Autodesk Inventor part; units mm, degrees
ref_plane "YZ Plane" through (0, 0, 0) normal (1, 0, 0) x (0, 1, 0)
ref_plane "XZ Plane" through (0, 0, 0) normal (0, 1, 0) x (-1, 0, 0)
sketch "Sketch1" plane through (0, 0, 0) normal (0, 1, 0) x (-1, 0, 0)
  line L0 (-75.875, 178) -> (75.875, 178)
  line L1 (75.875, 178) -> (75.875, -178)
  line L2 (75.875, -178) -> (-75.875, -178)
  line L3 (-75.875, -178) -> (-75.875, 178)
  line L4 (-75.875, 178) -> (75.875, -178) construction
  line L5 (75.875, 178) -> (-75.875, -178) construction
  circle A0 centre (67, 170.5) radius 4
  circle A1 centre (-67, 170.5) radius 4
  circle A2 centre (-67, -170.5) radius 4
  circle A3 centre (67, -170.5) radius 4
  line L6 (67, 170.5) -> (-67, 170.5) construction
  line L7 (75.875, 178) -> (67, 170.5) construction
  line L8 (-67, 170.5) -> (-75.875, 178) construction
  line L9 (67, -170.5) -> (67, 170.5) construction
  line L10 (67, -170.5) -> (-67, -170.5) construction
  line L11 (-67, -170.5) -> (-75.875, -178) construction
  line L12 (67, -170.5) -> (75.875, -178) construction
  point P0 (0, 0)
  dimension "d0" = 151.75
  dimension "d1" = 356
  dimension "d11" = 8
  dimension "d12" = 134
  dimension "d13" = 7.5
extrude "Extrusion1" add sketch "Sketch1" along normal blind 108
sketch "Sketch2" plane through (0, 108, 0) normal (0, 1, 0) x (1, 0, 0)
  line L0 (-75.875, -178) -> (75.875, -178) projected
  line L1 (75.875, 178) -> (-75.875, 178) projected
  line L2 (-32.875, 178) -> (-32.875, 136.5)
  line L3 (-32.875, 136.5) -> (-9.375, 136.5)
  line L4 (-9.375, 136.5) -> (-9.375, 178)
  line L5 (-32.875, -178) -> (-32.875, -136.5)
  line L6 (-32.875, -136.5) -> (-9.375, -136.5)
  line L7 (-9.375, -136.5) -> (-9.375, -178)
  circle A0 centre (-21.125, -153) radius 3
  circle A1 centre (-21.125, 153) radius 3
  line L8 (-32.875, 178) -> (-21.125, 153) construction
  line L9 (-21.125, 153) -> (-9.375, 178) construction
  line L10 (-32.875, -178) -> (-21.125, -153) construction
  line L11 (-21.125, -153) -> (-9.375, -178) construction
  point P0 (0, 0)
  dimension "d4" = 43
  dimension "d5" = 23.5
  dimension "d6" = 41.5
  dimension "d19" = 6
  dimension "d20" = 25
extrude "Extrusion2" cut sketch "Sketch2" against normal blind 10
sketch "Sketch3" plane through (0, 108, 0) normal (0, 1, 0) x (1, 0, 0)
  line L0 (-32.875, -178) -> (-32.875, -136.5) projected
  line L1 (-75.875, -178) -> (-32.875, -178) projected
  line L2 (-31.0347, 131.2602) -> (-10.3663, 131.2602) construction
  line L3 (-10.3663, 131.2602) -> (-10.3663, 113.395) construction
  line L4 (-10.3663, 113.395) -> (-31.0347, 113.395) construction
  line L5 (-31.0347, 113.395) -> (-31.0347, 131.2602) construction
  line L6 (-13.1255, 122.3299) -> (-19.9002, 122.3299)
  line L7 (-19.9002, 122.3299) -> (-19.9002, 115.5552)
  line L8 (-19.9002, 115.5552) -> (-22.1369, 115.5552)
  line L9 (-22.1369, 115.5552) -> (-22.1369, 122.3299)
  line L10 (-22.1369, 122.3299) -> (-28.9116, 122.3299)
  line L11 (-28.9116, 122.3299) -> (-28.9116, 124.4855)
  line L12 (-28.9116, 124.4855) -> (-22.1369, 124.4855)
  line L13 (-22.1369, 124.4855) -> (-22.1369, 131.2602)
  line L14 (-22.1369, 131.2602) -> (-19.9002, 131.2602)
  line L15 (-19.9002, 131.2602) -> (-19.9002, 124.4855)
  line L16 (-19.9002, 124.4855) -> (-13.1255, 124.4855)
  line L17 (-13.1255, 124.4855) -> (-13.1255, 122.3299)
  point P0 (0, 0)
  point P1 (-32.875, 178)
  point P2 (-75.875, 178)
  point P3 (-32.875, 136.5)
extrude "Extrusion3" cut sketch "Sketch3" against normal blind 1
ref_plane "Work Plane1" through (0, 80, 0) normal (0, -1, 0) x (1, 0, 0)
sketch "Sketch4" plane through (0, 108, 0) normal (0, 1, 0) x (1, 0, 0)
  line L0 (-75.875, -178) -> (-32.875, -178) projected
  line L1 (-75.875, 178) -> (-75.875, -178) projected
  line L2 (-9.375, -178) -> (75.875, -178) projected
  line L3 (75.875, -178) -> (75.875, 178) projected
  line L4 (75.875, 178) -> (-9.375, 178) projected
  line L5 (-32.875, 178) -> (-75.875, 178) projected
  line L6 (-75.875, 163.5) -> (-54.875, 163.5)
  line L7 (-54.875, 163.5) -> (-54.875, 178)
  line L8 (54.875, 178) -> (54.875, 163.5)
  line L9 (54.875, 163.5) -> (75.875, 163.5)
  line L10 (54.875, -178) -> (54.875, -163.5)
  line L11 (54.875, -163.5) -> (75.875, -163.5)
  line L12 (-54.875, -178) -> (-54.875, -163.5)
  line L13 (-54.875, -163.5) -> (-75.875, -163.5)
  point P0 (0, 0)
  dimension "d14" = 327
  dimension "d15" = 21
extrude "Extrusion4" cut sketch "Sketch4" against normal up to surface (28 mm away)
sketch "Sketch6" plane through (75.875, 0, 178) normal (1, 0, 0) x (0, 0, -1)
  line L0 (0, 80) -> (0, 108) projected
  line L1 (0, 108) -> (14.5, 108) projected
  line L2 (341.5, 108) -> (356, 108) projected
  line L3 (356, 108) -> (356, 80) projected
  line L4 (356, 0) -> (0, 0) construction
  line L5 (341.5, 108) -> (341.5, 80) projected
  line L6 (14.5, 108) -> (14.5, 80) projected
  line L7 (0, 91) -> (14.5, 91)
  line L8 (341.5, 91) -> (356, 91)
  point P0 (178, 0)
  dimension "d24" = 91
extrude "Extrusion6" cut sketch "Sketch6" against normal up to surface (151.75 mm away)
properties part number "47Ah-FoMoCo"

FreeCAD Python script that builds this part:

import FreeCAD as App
import Part
import Sketcher

V = App.Vector
Q = App.Units.Quantity


def add_polygon(sketch, points):
    """Adds a closed chain of lines whose ends are joined by coincident constraints."""
    first, n = sketch.GeometryCount, len(points)
    for a, b in zip(points, points[1:] + points[:1]):
        sketch.addGeometry(Part.LineSegment(App.Vector(*a, 0), App.Vector(*b, 0)), False)
    for i in range(n):
        sketch.addConstraint(Sketcher.Constraint("Coincident", first + i, 2, first + (i + 1) % n, 1))

doc = App.newDocument("Part")
body = doc.addObject("PartDesign::Body", "Body")

# Sketch on XZ plane
sketch1 = doc.addObject("Sketcher::SketchObject", "Sketch")
body.addObject(sketch1)
sketch1.AttachmentSupport = (doc.XZ_Plane, [""])
sketch1.MapMode = "FlatFace"
add_polygon(sketch1, [(-75.9, 178), (75.9, 178), (75.9, -178), (-75.9, -178)])  # lines 0-3
sketch1.addGeometry(Part.Circle(V(67, -170.5, 0), V(0, 0, 1), 4), False)  # 4
sketch1.addGeometry(Part.Circle(V(-67, -170.5, 0), V(0, 0, 1), 4), False)  # 5
sketch1.addGeometry(Part.Circle(V(67, 170.5, 0), V(0, 0, 1), 4), False)  # 6
sketch1.addGeometry(Part.Circle(V(-67, 170.5, 0), V(0, 0, 1), 4), False)  # 7
sketch1.addConstraint([
    Sketcher.Constraint("Horizontal", 0),
    Sketcher.Constraint("Vertical", 1),
    Sketcher.Constraint("Horizontal", 2),
    Sketcher.Constraint("Vertical", 3),
    Sketcher.Constraint("Equal", 4, 5),
    Sketcher.Constraint("Equal", 5, 6),
    Sketcher.Constraint("Equal", 6, 7),
    Sketcher.Constraint("Symmetric", 5, 3, 6, 3, -1, 1),
    Sketcher.Constraint("Symmetric", 4, 3, 7, 3, -1, 1),
    Sketcher.Constraint("Symmetric", 0, 2, 2, 2, -1, 1),
    Sketcher.Constraint("Symmetric", 4, 3, 5, 3, -2),
    Sketcher.Constraint("Diameter", 4, Q("8 mm")),
    Sketcher.Constraint("DistanceY", 1, 2, 1, 1, Q("356 mm")),
    Sketcher.Constraint("DistanceX", 5, 3, 4, 3, Q("134 mm")),
    Sketcher.Constraint("DistanceX", 0, 1, 0, 2, Q("151.75 mm")),
    Sketcher.Constraint("DistanceY", 6, 3, 0, 2, Q("7.5 mm")),
])
pad1 = doc.addObject("PartDesign::Pad", "Pad")
body.addObject(pad1)
pad1.Profile = sketch1
pad1.Length = 108
pad1.Reversed = True

# Sketch on XZ plane
sketch2 = doc.addObject("Sketcher::SketchObject", "Sketch001")
body.addObject(sketch2)
sketch2.AttachmentSupport = (doc.XZ_Plane, [""])
sketch2.MapMode = "FlatFace"
sketch2.AttachmentOffset = App.Placement(V(0, 0, -108), App.Rotation())
add_polygon(sketch2, [(-32.9, 136.5), (-32.9, 178), (-9.4, 178), (-9.4, 136.5)])  # lines 0-3
sketch2.addGeometry(Part.Circle(V(-21.1, 153, 0), V(0, 0, 1), 3), False)  # 4
add_polygon(sketch2, [(-9.4, -136.5), (-9.4, -178), (-32.9, -178), (-32.9, -136.5)])  # lines 5-8
sketch2.addGeometry(Part.Circle(V(-21.1, -153, 0), V(0, 0, 1), 3), False)  # 9
sketch2.addConstraint([
    Sketcher.Constraint("Vertical", 0),
    Sketcher.Constraint("Horizontal", 1),
    Sketcher.Constraint("Vertical", 2),
    Sketcher.Constraint("Horizontal", 3),
    Sketcher.Constraint("Vertical", 5),
    Sketcher.Constraint("Horizontal", 6),
    Sketcher.Constraint("Vertical", 7),
    Sketcher.Constraint("Horizontal", 8),
    Sketcher.Constraint("Equal", 4, 9),
    Sketcher.Constraint("Symmetric", 4, 3, 9, 3, -1),
    Sketcher.Constraint("Symmetric", 1, 2, 5, 2, -1),
    Sketcher.Constraint("Symmetric", 3, 2, 7, 2, -1),
    Sketcher.Constraint("Diameter", 4, Q("6 mm")),
    Sketcher.Constraint("DistanceX", 1, 1, 1, 2, Q("23.5 mm")),
    Sketcher.Constraint("DistanceY", 0, 1, 0, 2, Q("41.5 mm")),
    Sketcher.Constraint("DistanceY", 4, 3, 0, 2, Q("25 mm")),
    Sketcher.Constraint("DistanceY", -1, 1, 4, 3, Q("153 mm")),
    Sketcher.Constraint("DistanceX", 0, 2, 4, 3, Q("11.75 mm")),
    Sketcher.Constraint("DistanceX", 4, 3, -1, 1, Q("21.125 mm")),
])
pocket1 = doc.addObject("PartDesign::Pocket", "Pocket")
body.addObject(pocket1)
pocket1.Profile = sketch2
pocket1.Length = 10
pocket1.Reversed = True

# Sketch on XZ plane
sketch3 = doc.addObject("Sketcher::SketchObject", "Sketch002")
body.addObject(sketch3)
sketch3.AttachmentSupport = (doc.XZ_Plane, [""])
sketch3.MapMode = "FlatFace"
sketch3.AttachmentOffset = App.Placement(V(0, 0, -108), App.Rotation())
add_polygon(sketch3, [(-19.9, -122.3), (-13.1, -122.3), (-13.1, -124.5), (-19.9, -124.5), (-19.9, -131.3), (-22.1, -131.3), (-22.1, -124.5), (-28.9, -124.5), (-28.9, -122.3), (-22.1, -122.3), (-22.1, -115.6), (-19.9, -115.6)])  # lines 0-11
sketch3.addConstraint([
    Sketcher.Constraint("Horizontal", 0),
    Sketcher.Constraint("Vertical", 1),
    Sketcher.Constraint("Horizontal", 2),
    Sketcher.Constraint("Vertical", 3),
    Sketcher.Constraint("Horizontal", 4),
    Sketcher.Constraint("Vertical", 5),
    Sketcher.Constraint("Horizontal", 6),
    Sketcher.Constraint("Vertical", 7),
    Sketcher.Constraint("Horizontal", 8),
    Sketcher.Constraint("Vertical", 9),
    Sketcher.Constraint("Horizontal", 10),
    Sketcher.Constraint("Vertical", 11),
    Sketcher.Constraint("Horizontal", 2, 2, 5, 2),
    Sketcher.Constraint("Horizontal", 0, 2, 7, 2),
    Sketcher.Constraint("Vertical", 5, 2, 8, 2),
    Sketcher.Constraint("Vertical", 3, 2, 10, 2),
    Sketcher.Constraint("Equal", 2, 6),
    Sketcher.Constraint("Equal", 8, 3),
    Sketcher.Constraint("Equal", 5, 9),
    Sketcher.Constraint("DistanceY", 0, 2, -1, 1, Q("122.33 mm")),
    Sketcher.Constraint("DistanceX", 0, 1, 0, 2, Q("6.7747 mm")),
    Sketcher.Constraint("DistanceX", 4, 2, 4, 1, Q("2.2367 mm")),
    Sketcher.Constraint("DistanceY", 1, 2, 1, 1, Q("2.1556 mm")),
    Sketcher.Constraint("DistanceX", 4, 2, -1, 1, Q("22.137 mm")),
])
pocket2 = doc.addObject("PartDesign::Pocket", "Pocket001")
body.addObject(pocket2)
pocket2.Profile = sketch3
pocket2.Length = 1
pocket2.Reversed = True

# Sketch on XZ plane
sketch4 = doc.addObject("Sketcher::SketchObject", "Sketch003")
body.addObject(sketch4)
sketch4.AttachmentSupport = (doc.XZ_Plane, [""])
sketch4.MapMode = "FlatFace"
sketch4.AttachmentOffset = App.Placement(V(0, 0, -108), App.Rotation())
add_polygon(sketch4, [(-76, 164), (-76, 178), (-55, 178), (-55, 164)])  # lines 0-3
add_polygon(sketch4, [(-76, -178), (-76, -164), (-55, -164), (-55, -178)])  # lines 4-7
add_polygon(sketch4, [(55, 164), (55, 178), (76, 178), (76, 164)])  # lines 8-11
add_polygon(sketch4, [(55, -164), (76, -164), (76, -178), (55, -178)])  # lines 12-15
sketch4.addConstraint([
    Sketcher.Constraint("Vertical", 0),
    Sketcher.Constraint("Horizontal", 1),
    Sketcher.Constraint("Vertical", 2),
    Sketcher.Constraint("Horizontal", 3),
    Sketcher.Constraint("Vertical", 4),
    Sketcher.Constraint("Horizontal", 5),
    Sketcher.Constraint("Vertical", 6),
    Sketcher.Constraint("Horizontal", 7),
    Sketcher.Constraint("Vertical", 8),
    Sketcher.Constraint("Horizontal", 9),
    Sketcher.Constraint("Vertical", 10),
    Sketcher.Constraint("Horizontal", 11),
    Sketcher.Constraint("Horizontal", 12),
    Sketcher.Constraint("Vertical", 13),
    Sketcher.Constraint("Horizontal", 14),
    Sketcher.Constraint("Vertical", 15),
    Sketcher.Constraint("Symmetric", 6, 2, 8, 2, -1, 1),
    Sketcher.Constraint("Symmetric", 4, 2, 10, 2, -1, 1),
    Sketcher.Constraint("Symmetric", 3, 2, 12, 2, -1, 1),
    Sketcher.Constraint("Symmetric", 1, 2, 14, 2, -1, 1),
    Sketcher.Constraint("Symmetric", 1, 2, 8, 2, -2),
    Sketcher.Constraint("Symmetric", 3, 2, 10, 2, -2),
    Sketcher.Constraint("DistanceX", 1, 1, 1, 2, Q("21 mm")),
    Sketcher.Constraint("DistanceY", 4, 2, 3, 2, Q("327 mm")),
    Sketcher.Constraint("DistanceY", 0, 1, 0, 2, Q("14.5 mm")),
    Sketcher.Constraint("DistanceX", 1, 2, 8, 2, Q("109.75 mm")),
])
pocket3 = doc.addObject("PartDesign::Pocket", "Pocket002")
body.addObject(pocket3)
pocket3.Profile = sketch4
pocket3.Length = 28
pocket3.Reversed = True

# Sketch on YZ plane
sketch5 = doc.addObject("Sketcher::SketchObject", "Sketch004")
body.addObject(sketch5)
sketch5.AttachmentSupport = (doc.YZ_Plane, [""])
sketch5.MapMode = "FlatFace"
sketch5.AttachmentOffset = App.Placement(V(0, 0, 75.875), App.Rotation())
add_polygon(sketch5, [(108, 178), (91, 178), (91, 164), (108, 164)])  # lines 0-3
add_polygon(sketch5, [(108, -178), (108, -164), (91, -164), (91, -178)])  # lines 4-7
sketch5.addConstraint([
    Sketcher.Constraint("Horizontal", 0),
    Sketcher.Constraint("Vertical", 1),
    Sketcher.Constraint("Horizontal", 2),
    Sketcher.Constraint("Vertical", 3),
    Sketcher.Constraint("Vertical", 4),
    Sketcher.Constraint("Horizontal", 5),
    Sketcher.Constraint("Vertical", 6),
    Sketcher.Constraint("Horizontal", 7),
    Sketcher.Constraint("Symmetric", 2, 2, 4, 2, -1),
    Sketcher.Constraint("Symmetric", 0, 2, 6, 2, -1),
    Sketcher.Constraint("DistanceX", -1, 1, 0, 2, Q("91 mm")),
    Sketcher.Constraint("DistanceX", 0, 2, 0, 1, Q("17 mm")),
    Sketcher.Constraint("DistanceY", 1, 2, 1, 1, Q("14.5 mm")),
    Sketcher.Constraint("DistanceY", -1, 1, 0, 2, Q("178 mm")),
])
pocket4 = doc.addObject("PartDesign::Pocket", "Pocket003")
body.addObject(pocket4)
pocket4.Profile = sketch5
pocket4.Length = 151.75

doc.recompute()
